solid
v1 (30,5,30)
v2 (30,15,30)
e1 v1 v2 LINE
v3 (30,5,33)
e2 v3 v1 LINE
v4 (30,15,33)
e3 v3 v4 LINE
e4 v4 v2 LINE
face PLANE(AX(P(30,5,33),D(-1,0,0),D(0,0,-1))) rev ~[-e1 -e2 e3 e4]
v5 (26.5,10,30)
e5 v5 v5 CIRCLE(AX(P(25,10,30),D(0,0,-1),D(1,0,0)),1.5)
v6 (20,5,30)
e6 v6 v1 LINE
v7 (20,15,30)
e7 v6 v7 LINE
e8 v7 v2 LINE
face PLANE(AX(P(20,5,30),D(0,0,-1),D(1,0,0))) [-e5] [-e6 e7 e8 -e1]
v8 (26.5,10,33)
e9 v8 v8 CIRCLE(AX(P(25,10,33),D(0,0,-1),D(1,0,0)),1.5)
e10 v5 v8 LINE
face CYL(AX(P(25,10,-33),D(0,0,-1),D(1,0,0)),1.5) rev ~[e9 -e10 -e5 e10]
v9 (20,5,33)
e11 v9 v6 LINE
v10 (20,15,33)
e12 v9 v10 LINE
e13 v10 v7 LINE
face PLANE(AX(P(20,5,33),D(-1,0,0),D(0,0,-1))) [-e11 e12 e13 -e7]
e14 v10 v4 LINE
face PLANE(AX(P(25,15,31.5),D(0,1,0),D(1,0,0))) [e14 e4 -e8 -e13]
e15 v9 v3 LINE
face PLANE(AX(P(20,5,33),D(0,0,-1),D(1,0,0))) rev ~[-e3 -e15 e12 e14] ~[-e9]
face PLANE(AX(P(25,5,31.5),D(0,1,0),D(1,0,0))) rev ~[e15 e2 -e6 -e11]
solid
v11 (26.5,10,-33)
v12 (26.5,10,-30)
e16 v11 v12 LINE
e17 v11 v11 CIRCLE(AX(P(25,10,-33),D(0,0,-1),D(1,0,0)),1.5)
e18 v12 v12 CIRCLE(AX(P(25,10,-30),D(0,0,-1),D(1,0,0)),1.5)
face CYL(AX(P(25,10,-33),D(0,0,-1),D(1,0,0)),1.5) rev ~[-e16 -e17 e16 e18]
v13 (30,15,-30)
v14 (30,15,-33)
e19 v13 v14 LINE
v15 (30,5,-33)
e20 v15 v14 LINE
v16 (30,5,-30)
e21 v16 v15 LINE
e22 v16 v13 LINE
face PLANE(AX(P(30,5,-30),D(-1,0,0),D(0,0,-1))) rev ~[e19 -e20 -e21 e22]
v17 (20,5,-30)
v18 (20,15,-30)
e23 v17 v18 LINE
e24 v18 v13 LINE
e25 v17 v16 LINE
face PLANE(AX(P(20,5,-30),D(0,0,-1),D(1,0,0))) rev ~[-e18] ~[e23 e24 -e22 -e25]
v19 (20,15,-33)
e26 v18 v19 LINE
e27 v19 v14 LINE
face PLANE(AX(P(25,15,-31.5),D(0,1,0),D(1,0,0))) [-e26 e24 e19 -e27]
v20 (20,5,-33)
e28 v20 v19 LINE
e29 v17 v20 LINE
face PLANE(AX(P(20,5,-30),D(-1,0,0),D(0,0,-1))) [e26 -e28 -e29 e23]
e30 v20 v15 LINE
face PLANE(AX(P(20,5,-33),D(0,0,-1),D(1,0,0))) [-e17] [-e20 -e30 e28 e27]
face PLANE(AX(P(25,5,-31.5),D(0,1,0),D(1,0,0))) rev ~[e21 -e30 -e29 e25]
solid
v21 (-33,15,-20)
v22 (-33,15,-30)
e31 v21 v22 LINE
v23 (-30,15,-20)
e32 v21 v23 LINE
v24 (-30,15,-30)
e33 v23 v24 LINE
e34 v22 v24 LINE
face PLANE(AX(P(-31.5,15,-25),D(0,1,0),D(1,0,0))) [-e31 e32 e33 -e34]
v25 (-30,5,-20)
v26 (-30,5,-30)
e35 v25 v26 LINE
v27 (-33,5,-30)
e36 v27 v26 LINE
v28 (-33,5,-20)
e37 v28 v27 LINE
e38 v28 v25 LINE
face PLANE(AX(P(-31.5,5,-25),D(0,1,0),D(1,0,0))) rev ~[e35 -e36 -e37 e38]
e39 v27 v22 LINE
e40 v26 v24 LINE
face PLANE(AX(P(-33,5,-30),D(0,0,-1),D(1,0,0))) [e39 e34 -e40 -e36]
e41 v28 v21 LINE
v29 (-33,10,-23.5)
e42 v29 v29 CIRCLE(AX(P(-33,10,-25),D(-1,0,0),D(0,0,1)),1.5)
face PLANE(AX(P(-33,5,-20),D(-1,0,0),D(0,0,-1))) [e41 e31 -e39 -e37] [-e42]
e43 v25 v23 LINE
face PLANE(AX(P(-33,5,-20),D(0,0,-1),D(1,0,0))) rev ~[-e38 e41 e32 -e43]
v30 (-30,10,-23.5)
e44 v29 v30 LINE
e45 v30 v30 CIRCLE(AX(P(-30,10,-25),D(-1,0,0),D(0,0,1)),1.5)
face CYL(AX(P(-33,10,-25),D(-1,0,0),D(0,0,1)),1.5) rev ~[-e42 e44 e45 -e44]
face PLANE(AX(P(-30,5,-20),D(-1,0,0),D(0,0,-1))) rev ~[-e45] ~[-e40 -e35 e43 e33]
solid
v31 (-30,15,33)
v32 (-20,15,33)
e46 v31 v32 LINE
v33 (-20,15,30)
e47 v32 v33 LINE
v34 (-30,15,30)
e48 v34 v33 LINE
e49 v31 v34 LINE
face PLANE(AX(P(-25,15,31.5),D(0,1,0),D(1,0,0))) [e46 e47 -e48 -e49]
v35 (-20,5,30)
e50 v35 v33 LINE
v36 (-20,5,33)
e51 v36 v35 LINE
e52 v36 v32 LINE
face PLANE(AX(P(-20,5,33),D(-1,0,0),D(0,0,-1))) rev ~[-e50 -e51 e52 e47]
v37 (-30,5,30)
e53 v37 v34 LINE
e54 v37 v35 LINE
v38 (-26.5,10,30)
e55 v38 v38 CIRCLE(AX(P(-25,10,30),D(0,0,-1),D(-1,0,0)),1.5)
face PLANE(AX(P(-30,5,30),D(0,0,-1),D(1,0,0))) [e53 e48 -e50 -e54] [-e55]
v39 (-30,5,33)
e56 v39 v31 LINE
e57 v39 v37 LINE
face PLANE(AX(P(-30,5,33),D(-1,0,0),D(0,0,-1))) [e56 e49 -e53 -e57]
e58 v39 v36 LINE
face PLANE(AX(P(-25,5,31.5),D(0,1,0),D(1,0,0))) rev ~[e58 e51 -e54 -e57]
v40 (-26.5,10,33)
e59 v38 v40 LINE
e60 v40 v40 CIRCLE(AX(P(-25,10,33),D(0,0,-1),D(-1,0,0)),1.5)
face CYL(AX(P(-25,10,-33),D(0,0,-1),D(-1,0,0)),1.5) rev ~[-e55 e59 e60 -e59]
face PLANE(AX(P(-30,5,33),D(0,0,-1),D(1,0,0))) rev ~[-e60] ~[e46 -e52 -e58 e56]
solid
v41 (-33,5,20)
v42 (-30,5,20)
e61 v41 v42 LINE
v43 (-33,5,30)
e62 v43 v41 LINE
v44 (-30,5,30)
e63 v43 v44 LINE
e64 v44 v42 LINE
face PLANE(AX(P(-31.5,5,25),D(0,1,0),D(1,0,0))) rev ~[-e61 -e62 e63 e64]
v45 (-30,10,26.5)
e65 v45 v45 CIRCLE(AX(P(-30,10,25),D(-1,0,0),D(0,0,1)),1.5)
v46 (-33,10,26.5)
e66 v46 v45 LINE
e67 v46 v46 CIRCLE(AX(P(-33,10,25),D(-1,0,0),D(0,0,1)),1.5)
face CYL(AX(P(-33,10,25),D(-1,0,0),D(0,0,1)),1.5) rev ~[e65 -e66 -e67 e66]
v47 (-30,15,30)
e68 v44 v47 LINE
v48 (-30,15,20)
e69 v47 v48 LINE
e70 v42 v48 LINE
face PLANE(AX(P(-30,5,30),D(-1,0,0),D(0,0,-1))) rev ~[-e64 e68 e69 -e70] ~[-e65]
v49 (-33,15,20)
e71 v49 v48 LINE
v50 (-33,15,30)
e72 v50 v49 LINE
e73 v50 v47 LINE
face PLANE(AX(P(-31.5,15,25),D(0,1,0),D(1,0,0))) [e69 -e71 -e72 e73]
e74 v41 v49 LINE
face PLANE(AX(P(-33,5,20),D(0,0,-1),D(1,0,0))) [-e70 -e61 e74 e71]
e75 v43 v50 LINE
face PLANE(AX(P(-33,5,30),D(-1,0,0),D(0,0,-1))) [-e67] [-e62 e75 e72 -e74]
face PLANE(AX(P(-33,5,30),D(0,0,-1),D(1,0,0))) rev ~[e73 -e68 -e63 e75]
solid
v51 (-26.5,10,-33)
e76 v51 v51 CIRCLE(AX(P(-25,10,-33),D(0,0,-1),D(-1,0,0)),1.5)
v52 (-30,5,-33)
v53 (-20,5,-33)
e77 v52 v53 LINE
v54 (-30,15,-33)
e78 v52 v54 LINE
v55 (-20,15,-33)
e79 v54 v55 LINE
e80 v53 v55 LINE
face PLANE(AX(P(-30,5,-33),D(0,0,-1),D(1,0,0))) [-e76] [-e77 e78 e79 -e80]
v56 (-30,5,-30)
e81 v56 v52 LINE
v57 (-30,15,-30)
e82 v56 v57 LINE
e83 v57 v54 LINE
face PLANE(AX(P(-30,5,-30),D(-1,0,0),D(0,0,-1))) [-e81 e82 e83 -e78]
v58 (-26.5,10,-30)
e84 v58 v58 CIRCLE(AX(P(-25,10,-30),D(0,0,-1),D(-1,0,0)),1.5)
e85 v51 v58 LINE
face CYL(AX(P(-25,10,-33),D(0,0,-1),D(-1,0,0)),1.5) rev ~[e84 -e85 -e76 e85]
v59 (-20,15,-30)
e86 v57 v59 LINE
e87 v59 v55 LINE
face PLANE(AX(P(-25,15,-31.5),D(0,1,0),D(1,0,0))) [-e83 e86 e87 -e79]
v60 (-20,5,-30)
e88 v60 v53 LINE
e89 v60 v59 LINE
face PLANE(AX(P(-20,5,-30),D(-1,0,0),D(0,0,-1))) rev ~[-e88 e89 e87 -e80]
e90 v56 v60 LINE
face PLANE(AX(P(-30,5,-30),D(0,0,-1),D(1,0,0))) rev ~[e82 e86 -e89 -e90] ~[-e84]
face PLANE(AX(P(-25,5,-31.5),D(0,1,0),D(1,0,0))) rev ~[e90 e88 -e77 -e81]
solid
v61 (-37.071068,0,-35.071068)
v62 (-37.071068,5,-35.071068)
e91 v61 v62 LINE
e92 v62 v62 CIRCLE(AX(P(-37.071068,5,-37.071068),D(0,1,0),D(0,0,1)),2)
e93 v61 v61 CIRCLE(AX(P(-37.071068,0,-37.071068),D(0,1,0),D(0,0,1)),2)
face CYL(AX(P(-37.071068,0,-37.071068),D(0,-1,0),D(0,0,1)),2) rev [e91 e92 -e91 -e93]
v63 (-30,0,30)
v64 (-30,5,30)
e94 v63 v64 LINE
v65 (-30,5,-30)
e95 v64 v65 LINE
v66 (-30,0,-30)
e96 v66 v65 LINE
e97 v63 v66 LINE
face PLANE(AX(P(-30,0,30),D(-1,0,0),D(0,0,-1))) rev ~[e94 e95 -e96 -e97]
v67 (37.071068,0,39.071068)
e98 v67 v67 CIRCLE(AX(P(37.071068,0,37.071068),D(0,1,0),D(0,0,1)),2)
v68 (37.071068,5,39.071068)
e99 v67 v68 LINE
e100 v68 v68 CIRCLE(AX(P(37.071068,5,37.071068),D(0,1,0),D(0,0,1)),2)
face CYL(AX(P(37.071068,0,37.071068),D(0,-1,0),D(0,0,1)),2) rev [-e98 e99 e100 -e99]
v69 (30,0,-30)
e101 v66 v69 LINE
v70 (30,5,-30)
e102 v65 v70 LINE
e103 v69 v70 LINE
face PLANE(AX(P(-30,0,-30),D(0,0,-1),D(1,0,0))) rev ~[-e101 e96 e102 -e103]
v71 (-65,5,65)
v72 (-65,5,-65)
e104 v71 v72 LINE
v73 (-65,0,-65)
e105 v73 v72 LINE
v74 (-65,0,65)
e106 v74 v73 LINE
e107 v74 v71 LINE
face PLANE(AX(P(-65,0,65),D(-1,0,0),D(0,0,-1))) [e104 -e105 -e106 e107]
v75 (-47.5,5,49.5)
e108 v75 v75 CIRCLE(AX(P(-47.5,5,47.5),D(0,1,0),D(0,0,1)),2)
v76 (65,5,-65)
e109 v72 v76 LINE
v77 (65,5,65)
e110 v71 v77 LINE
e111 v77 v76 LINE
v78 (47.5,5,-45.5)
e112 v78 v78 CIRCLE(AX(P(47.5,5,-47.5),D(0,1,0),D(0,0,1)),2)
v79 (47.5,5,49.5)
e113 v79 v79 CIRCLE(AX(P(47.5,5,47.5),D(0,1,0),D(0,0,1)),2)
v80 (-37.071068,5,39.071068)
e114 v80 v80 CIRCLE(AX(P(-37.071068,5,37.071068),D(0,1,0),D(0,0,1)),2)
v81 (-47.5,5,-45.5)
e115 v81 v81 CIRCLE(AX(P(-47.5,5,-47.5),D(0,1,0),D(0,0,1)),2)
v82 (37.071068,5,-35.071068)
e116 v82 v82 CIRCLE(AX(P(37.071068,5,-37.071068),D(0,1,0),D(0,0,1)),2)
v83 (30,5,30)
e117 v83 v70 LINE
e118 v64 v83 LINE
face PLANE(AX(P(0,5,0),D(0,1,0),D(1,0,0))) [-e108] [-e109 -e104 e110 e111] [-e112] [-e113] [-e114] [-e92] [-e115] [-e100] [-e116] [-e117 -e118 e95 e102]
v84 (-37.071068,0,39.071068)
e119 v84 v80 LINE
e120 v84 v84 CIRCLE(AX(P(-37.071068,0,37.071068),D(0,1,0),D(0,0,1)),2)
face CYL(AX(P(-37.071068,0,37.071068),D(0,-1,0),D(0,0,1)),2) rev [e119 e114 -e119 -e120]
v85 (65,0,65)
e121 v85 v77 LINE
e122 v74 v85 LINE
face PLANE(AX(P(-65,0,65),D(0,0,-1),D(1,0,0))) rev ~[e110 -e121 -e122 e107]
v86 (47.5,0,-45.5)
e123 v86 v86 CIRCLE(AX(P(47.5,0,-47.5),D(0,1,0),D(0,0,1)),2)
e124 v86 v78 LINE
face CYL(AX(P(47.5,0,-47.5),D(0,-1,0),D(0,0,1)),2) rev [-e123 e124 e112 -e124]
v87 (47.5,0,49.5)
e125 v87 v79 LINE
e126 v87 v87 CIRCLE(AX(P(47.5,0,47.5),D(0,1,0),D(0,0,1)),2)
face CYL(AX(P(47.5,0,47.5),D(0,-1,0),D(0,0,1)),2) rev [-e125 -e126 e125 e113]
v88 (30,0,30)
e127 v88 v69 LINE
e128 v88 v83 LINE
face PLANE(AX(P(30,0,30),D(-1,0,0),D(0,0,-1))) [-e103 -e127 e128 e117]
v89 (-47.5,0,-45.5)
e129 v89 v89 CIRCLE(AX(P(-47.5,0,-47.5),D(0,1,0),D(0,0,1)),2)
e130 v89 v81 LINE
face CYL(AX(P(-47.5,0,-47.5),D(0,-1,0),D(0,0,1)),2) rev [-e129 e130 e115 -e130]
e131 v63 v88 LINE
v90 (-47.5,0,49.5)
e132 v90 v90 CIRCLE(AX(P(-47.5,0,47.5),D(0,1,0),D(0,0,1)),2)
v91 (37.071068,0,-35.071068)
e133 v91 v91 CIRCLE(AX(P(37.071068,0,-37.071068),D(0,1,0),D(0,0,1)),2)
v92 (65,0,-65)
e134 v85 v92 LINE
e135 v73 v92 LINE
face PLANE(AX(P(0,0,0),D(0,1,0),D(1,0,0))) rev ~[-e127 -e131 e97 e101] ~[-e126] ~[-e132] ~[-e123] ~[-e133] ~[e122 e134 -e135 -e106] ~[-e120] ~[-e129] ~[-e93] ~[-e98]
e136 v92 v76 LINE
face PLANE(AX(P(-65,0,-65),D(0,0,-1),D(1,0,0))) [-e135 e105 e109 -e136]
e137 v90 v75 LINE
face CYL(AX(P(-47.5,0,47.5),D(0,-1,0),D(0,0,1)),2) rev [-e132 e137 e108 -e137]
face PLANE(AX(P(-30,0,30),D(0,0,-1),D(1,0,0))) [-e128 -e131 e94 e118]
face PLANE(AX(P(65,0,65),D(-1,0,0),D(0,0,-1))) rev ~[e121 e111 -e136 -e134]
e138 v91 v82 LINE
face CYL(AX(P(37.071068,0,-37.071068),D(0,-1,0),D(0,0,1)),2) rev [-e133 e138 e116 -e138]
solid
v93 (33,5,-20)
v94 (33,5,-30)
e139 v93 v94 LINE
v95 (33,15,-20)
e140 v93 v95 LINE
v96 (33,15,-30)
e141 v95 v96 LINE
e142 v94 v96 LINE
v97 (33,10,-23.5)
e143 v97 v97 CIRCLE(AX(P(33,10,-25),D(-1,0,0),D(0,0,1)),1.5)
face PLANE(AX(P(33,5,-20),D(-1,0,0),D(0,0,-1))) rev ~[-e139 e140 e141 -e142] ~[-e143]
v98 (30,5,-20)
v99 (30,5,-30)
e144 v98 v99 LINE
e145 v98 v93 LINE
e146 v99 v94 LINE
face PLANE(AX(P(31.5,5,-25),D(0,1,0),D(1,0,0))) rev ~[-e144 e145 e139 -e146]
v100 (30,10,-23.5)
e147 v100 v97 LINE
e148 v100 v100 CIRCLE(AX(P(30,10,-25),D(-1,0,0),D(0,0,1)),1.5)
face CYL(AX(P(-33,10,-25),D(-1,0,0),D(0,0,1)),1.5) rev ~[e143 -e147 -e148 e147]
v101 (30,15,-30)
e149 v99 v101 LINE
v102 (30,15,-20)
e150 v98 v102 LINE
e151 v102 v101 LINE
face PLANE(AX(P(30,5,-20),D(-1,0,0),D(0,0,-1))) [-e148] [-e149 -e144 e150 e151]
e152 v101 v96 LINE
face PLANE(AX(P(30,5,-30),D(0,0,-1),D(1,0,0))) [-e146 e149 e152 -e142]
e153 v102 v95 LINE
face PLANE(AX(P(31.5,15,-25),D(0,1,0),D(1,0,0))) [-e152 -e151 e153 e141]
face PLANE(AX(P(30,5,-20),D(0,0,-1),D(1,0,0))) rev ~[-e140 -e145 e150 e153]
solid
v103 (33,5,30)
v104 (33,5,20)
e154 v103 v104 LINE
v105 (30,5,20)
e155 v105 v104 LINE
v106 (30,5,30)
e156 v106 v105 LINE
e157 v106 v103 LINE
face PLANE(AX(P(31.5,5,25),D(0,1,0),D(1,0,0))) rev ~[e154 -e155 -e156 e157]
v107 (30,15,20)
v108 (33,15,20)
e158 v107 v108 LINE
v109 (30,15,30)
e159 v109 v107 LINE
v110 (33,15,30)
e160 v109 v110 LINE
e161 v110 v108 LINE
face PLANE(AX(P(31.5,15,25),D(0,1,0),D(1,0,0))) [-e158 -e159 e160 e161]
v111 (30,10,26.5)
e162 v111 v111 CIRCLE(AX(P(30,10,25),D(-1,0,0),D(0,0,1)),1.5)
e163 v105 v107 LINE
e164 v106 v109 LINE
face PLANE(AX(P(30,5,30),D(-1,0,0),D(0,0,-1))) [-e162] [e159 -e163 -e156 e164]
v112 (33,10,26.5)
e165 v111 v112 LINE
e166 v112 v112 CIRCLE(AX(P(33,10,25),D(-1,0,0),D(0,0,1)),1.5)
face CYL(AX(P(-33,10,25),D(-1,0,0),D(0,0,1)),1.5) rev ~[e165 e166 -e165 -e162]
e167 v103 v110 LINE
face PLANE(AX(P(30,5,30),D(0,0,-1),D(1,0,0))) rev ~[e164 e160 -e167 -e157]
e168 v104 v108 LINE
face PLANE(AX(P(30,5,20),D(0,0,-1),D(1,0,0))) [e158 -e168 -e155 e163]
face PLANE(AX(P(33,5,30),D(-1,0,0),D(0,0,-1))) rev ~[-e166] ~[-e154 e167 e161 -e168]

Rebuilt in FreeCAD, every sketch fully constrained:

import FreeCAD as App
import Part
import Sketcher
from FreeCAD import Vector

doc = App.newDocument("Part")
body = doc.addObject("PartDesign::Body", "Body")

# Sketch on XZ plane
sketch1 = body.newObject("Sketcher::SketchObject", "Sketch")
sketch1.AttachmentSupport = (doc.getObject("XZ_Plane"), [""])
sketch1.MapMode = "FlatFace"
sketch1.addGeometry(Part.LineSegment(Vector(-65, -65, 0), Vector(-65, 65, 0)), False)
sketch1.addGeometry(Part.LineSegment(Vector(-65, 65, 0), Vector(65, 65, 0)), False)
sketch1.addGeometry(Part.LineSegment(Vector(65, 65, 0), Vector(65, -65, 0)), False)
sketch1.addGeometry(Part.LineSegment(Vector(65, -65, 0), Vector(-65, -65, 0)), False)
sketch1.addGeometry(Part.Circle(Vector(-47.5, 47.5, 0), Vector(0, 0, 1), 2), False)
sketch1.addGeometry(Part.Circle(Vector(-37.1, 37.1, 0), Vector(0, 0, 1), 2), False)
sketch1.addGeometry(Part.Circle(Vector(47.5, 47.5, 0), Vector(0, 0, 1), 2), False)
sketch1.addGeometry(Part.Circle(Vector(37.1, 37.1, 0), Vector(0, 0, 1), 2), False)
sketch1.addGeometry(Part.Circle(Vector(-37.1, -37.1, 0), Vector(0, 0, 1), 2), False)
sketch1.addGeometry(Part.Circle(Vector(-47.5, -47.5, 0), Vector(0, 0, 1), 2), False)
sketch1.addGeometry(Part.LineSegment(Vector(30, 30, 0), Vector(-30, 30, 0)), False)
sketch1.addGeometry(Part.LineSegment(Vector(-30, 30, 0), Vector(-30, -30, 0)), False)
sketch1.addGeometry(Part.LineSegment(Vector(-30, -30, 0), Vector(30, -30, 0)), False)
sketch1.addGeometry(Part.LineSegment(Vector(30, -30, 0), Vector(30, 30, 0)), False)
sketch1.addGeometry(Part.Circle(Vector(37.1, -37.1, 0), Vector(0, 0, 1), 2), False)
sketch1.addGeometry(Part.Circle(Vector(47.5, -47.5, 0), Vector(0, 0, 1), 2), False)
sketch1.addConstraint(Sketcher.Constraint("Coincident", 0, 2, 1, 1))
sketch1.addConstraint(Sketcher.Constraint("Coincident", 1, 2, 2, 1))
sketch1.addConstraint(Sketcher.Constraint("Coincident", 2, 2, 3, 1))
sketch1.addConstraint(Sketcher.Constraint("Coincident", 3, 2, 0, 1))
sketch1.addConstraint(Sketcher.Constraint("Coincident", 10, 2, 11, 1))
sketch1.addConstraint(Sketcher.Constraint("Coincident", 11, 2, 12, 1))
sketch1.addConstraint(Sketcher.Constraint("Coincident", 12, 2, 13, 1))
sketch1.addConstraint(Sketcher.Constraint("Coincident", 13, 2, 10, 1))
sketch1.addConstraint(Sketcher.Constraint("Vertical", 0))
sketch1.addConstraint(Sketcher.Constraint("Horizontal", 1))
sketch1.addConstraint(Sketcher.Constraint("Vertical", 2))
sketch1.addConstraint(Sketcher.Constraint("Horizontal", 3))
sketch1.addConstraint(Sketcher.Constraint("Horizontal", 10))
sketch1.addConstraint(Sketcher.Constraint("Vertical", 11))
sketch1.addConstraint(Sketcher.Constraint("Horizontal", 12))
sketch1.addConstraint(Sketcher.Constraint("Vertical", 13))
sketch1.addConstraint(Sketcher.Constraint("Equal", 4, 5))
sketch1.addConstraint(Sketcher.Constraint("Equal", 5, 6))
sketch1.addConstraint(Sketcher.Constraint("Equal", 6, 7))
sketch1.addConstraint(Sketcher.Constraint("Equal", 7, 8))
sketch1.addConstraint(Sketcher.Constraint("Equal", 8, 9))
sketch1.addConstraint(Sketcher.Constraint("Equal", 9, 14))
sketch1.addConstraint(Sketcher.Constraint("Equal", 14, 15))
sketch1.addConstraint(Sketcher.Constraint("Symmetric", 7, 3, 8, 3, -1, 1))
sketch1.addConstraint(Sketcher.Constraint("Symmetric", 6, 3, 9, 3, -1, 1))
sketch1.addConstraint(Sketcher.Constraint("Symmetric", 5, 3, 14, 3, -1, 1))
sketch1.addConstraint(Sketcher.Constraint("Symmetric", 4, 3, 15, 3, -1, 1))
sketch1.addConstraint(Sketcher.Constraint("Symmetric", 0, 2, 2, 2, -1, 1))
sketch1.addConstraint(Sketcher.Constraint("Symmetric", 10, 2, 12, 2, -1, 1))
sketch1.addConstraint(Sketcher.Constraint("Symmetric", 4, 3, 6, 3, -2))
sketch1.addConstraint(Sketcher.Constraint("Symmetric", 5, 3, 7, 3, -2))
sketch1.addConstraint(Sketcher.Constraint("Equal", 3, 0))
sketch1.addConstraint(Sketcher.Constraint("Equal", 12, 11))
sketch1.addConstraint(Sketcher.Constraint("Diameter", 4, 4.0))
sketch1.addConstraint(Sketcher.Constraint("DistanceX", 1, 1, 1, 2, 130.0))
sketch1.addConstraint(Sketcher.Constraint("DistanceX", 10, 2, 10, 1, 60.0))
sketch1.addConstraint(Sketcher.Constraint("DistanceX", 4, 3, 6, 3, 95.0))
sketch1.addConstraint(Sketcher.Constraint("DistanceY", 9, 3, 4, 3, 95.0))
sketch1.addConstraint(Sketcher.Constraint("DistanceX", 5, 3, -1, 1, 37.071068))
sketch1.addConstraint(Sketcher.Constraint("DistanceY", -1, 1, 5, 3, 37.071068))
pad1 = body.newObject("PartDesign::Pad", "Pad")
pad1.Profile = sketch1
pad1.Length = 5
pad1.Reversed = True
body2 = doc.addObject("PartDesign::Body", "Body001")

# Sketch on XZ plane
sketch2 = body2.newObject("Sketcher::SketchObject", "Sketch001")
sketch2.AttachmentSupport = (doc.getObject("XZ_Plane001"), [""])
sketch2.MapMode = "FlatFace"
sketch2.AttachmentOffset = App.Placement(Vector(0, 0, -5), App.Rotation())
sketch2.addGeometry(Part.LineSegment(Vector(-33, -30, 0), Vector(-33, -20, 0)), False)
sketch2.addGeometry(Part.LineSegment(Vector(-33, -20, 0), Vector(-30, -20, 0)), False)
sketch2.addGeometry(Part.LineSegment(Vector(-30, -20, 0), Vector(-30, -30, 0)), False)
sketch2.addGeometry(Part.LineSegment(Vector(-30, -30, 0), Vector(-33, -30, 0)), False)
sketch2.addConstraint(Sketcher.Constraint("Coincident", 0, 2, 1, 1))
sketch2.addConstraint(Sketcher.Constraint("Coincident", 1, 2, 2, 1))
sketch2.addConstraint(Sketcher.Constraint("Coincident", 2, 2, 3, 1))
sketch2.addConstraint(Sketcher.Constraint("Coincident", 3, 2, 0, 1))
sketch2.addConstraint(Sketcher.Constraint("Vertical", 0))
sketch2.addConstraint(Sketcher.Constraint("Horizontal", 1))
sketch2.addConstraint(Sketcher.Constraint("Vertical", 2))
sketch2.addConstraint(Sketcher.Constraint("Horizontal", 3))
sketch2.addConstraint(Sketcher.Constraint("DistanceX", 1, 1, 1, 2, 3.0))
sketch2.addConstraint(Sketcher.Constraint("DistanceY", 0, 1, 0, 2, 10.0))
sketch2.addConstraint(Sketcher.Constraint("DistanceX", 0, 2, -1, 1, 33.0))
sketch2.addConstraint(Sketcher.Constraint("DistanceY", 0, 2, -1, 1, 20.0))
pad2 = body2.newObject("PartDesign::Pad", "Pad001")
pad2.Profile = sketch2
pad2.Length = 10
pad2.Reversed = True
body3 = doc.addObject("PartDesign::Body", "Body002")

# Sketch on XZ plane
sketch3 = body3.newObject("Sketcher::SketchObject", "Sketch002")
sketch3.AttachmentSupport = (doc.getObject("XZ_Plane002"), [""])
sketch3.MapMode = "FlatFace"
sketch3.AttachmentOffset = App.Placement(Vector(0, 0, -5), App.Rotation())
sketch3.addGeometry(Part.LineSegment(Vector(-30, -33, 0), Vector(-30, -30, 0)), False)
sketch3.addGeometry(Part.LineSegment(Vector(-30, -30, 0), Vector(-20, -30, 0)), False)
sketch3.addGeometry(Part.LineSegment(Vector(-20, -30, 0), Vector(-20, -33, 0)), False)
sketch3.addGeometry(Part.LineSegment(Vector(-20, -33, 0), Vector(-30, -33, 0)), False)
sketch3.addConstraint(Sketcher.Constraint("Coincident", 0, 2, 1, 1))
sketch3.addConstraint(Sketcher.Constraint("Coincident", 1, 2, 2, 1))
sketch3.addConstraint(Sketcher.Constraint("Coincident", 2, 2, 3, 1))
sketch3.addConstraint(Sketcher.Constraint("Coincident", 3, 2, 0, 1))
sketch3.addConstraint(Sketcher.Constraint("Vertical", 0))
sketch3.addConstraint(Sketcher.Constraint("Horizontal", 1))
sketch3.addConstraint(Sketcher.Constraint("Vertical", 2))
sketch3.addConstraint(Sketcher.Constraint("Horizontal", 3))
sketch3.addConstraint(Sketcher.Constraint("DistanceX", 1, 1, 1, 2, 10.0))
sketch3.addConstraint(Sketcher.Constraint("DistanceY", 0, 1, 0, 2, 3.0))
sketch3.addConstraint(Sketcher.Constraint("DistanceX", 0, 2, -1, 1, 30.0))
sketch3.addConstraint(Sketcher.Constraint("DistanceY", 0, 2, -1, 1, 30.0))
pad3 = body3.newObject("PartDesign::Pad", "Pad002")
pad3.Profile = sketch3
pad3.Length = 10
pad3.Reversed = True
body4 = doc.addObject("PartDesign::Body", "Body003")

# Sketch on XZ plane
sketch4 = body4.newObject("Sketcher::SketchObject", "Sketch003")
sketch4.AttachmentSupport = (doc.getObject("XZ_Plane003"), [""])
sketch4.MapMode = "FlatFace"
sketch4.AttachmentOffset = App.Placement(Vector(0, 0, -5), App.Rotation())
sketch4.addGeometry(Part.LineSegment(Vector(20, -33, 0), Vector(20, -30, 0)), False)
sketch4.addGeometry(Part.LineSegment(Vector(20, -30, 0), Vector(30, -30, 0)), False)
sketch4.addGeometry(Part.LineSegment(Vector(30, -30, 0), Vector(30, -33, 0)), False)
sketch4.addGeometry(Part.LineSegment(Vector(30, -33, 0), Vector(20, -33, 0)), False)
sketch4.addConstraint(Sketcher.Constraint("Coincident", 0, 2, 1, 1))
sketch4.addConstraint(Sketcher.Constraint("Coincident", 1, 2, 2, 1))
sketch4.addConstraint(Sketcher.Constraint("Coincident", 2, 2, 3, 1))
sketch4.addConstraint(Sketcher.Constraint("Coincident", 3, 2, 0, 1))
sketch4.addConstraint(Sketcher.Constraint("Vertical", 0))
sketch4.addConstraint(Sketcher.Constraint("Horizontal", 1))
sketch4.addConstraint(Sketcher.Constraint("Vertical", 2))
sketch4.addConstraint(Sketcher.Constraint("Horizontal", 3))
sketch4.addConstraint(Sketcher.Constraint("DistanceX", 1, 1, 1, 2, 10.0))
sketch4.addConstraint(Sketcher.Constraint("DistanceY", 0, 1, 0, 2, 3.0))
sketch4.addConstraint(Sketcher.Constraint("DistanceX", -1, 1, 0, 2, 20.0))
sketch4.addConstraint(Sketcher.Constraint("DistanceY", 0, 2, -1, 1, 30.0))
pad4 = body4.newObject("PartDesign::Pad", "Pad003")
pad4.Profile = sketch4
pad4.Length = 10
pad4.Reversed = True
body5 = doc.addObject("PartDesign::Body", "Body004")

# Sketch on XZ plane
sketch5 = body5.newObject("Sketcher::SketchObject", "Sketch004")
sketch5.AttachmentSupport = (doc.getObject("XZ_Plane004"), [""])
sketch5.MapMode = "FlatFace"
sketch5.AttachmentOffset = App.Placement(Vector(0, 0, -5), App.Rotation())
sketch5.addGeometry(Part.LineSegment(Vector(20, 30, 0), Vector(20, 33, 0)), False)
sketch5.addGeometry(Part.LineSegment(Vector(20, 33, 0), Vector(30, 33, 0)), False)
sketch5.addGeometry(Part.LineSegment(Vector(30, 33, 0), Vector(30, 30, 0)), False)
sketch5.addGeometry(Part.LineSegment(Vector(30, 30, 0), Vector(20, 30, 0)), False)
sketch5.addConstraint(Sketcher.Constraint("Coincident", 0, 2, 1, 1))
sketch5.addConstraint(Sketcher.Constraint("Coincident", 1, 2, 2, 1))
sketch5.addConstraint(Sketcher.Constraint("Coincident", 2, 2, 3, 1))
sketch5.addConstraint(Sketcher.Constraint("Coincident", 3, 2, 0, 1))
sketch5.addConstraint(Sketcher.Constraint("Vertical", 0))
sketch5.addConstraint(Sketcher.Constraint("Horizontal", 1))
sketch5.addConstraint(Sketcher.Constraint("Vertical", 2))
sketch5.addConstraint(Sketcher.Constraint("Horizontal", 3))
sketch5.addConstraint(Sketcher.Constraint("DistanceX", 1, 1, 1, 2, 10.0))
sketch5.addConstraint(Sketcher.Constraint("DistanceY", 0, 1, 0, 2, 3.0))
sketch5.addConstraint(Sketcher.Constraint("DistanceX", -1, 1, 0, 2, 20.0))
sketch5.addConstraint(Sketcher.Constraint("DistanceY", -1, 1, 0, 2, 33.0))
pad5 = body5.newObject("PartDesign::Pad", "Pad004")
pad5.Profile = sketch5
pad5.Length = 10
pad5.Reversed = True
body6 = doc.addObject("PartDesign::Body", "Body005")

# Sketch on XZ plane
sketch6 = body6.newObject("Sketcher::SketchObject", "Sketch005")
sketch6.AttachmentSupport = (doc.getObject("XZ_Plane005"), [""])
sketch6.MapMode = "FlatFace"
sketch6.AttachmentOffset = App.Placement(Vector(0, 0, -5), App.Rotation())
sketch6.addGeometry(Part.LineSegment(Vector(30, -30, 0), Vector(30, -20, 0)), False)
sketch6.addGeometry(Part.LineSegment(Vector(30, -20, 0), Vector(33, -20, 0)), False)
sketch6.addGeometry(Part.LineSegment(Vector(33, -20, 0), Vector(33, -30, 0)), False)
sketch6.addGeometry(Part.LineSegment(Vector(33, -30, 0), Vector(30, -30, 0)), False)
sketch6.addConstraint(Sketcher.Constraint("Coincident", 0, 2, 1, 1))
sketch6.addConstraint(Sketcher.Constraint("Coincident", 1, 2, 2, 1))
sketch6.addConstraint(Sketcher.Constraint("Coincident", 2, 2, 3, 1))
sketch6.addConstraint(Sketcher.Constraint("Coincident", 3, 2, 0, 1))
sketch6.addConstraint(Sketcher.Constraint("Vertical", 0))
sketch6.addConstraint(Sketcher.Constraint("Horizontal", 1))
sketch6.addConstraint(Sketcher.Constraint("Vertical", 2))
sketch6.addConstraint(Sketcher.Constraint("Horizontal", 3))
sketch6.addConstraint(Sketcher.Constraint("DistanceX", 1, 1, 1, 2, 3.0))
sketch6.addConstraint(Sketcher.Constraint("DistanceY", 0, 1, 0, 2, 10.0))
sketch6.addConstraint(Sketcher.Constraint("DistanceX", -1, 1, 0, 2, 30.0))
sketch6.addConstraint(Sketcher.Constraint("DistanceY", 0, 2, -1, 1, 20.0))
pad6 = body6.newObject("PartDesign::Pad", "Pad005")
pad6.Profile = sketch6
pad6.Length = 10
pad6.Reversed = True
body7 = doc.addObject("PartDesign::Body", "Body006")

# Sketch on XZ plane
sketch7 = body7.newObject("Sketcher::SketchObject", "Sketch006")
sketch7.AttachmentSupport = (doc.getObject("XZ_Plane006"), [""])
sketch7.MapMode = "FlatFace"
sketch7.AttachmentOffset = App.Placement(Vector(0, 0, -5), App.Rotation())
sketch7.addGeometry(Part.LineSegment(Vector(-30, 30, 0), Vector(-30, 33, 0)), False)
sketch7.addGeometry(Part.LineSegment(Vector(-30, 33, 0), Vector(-20, 33, 0)), False)
sketch7.addGeometry(Part.LineSegment(Vector(-20, 33, 0), Vector(-20, 30, 0)), False)
sketch7.addGeometry(Part.LineSegment(Vector(-20, 30, 0), Vector(-30, 30, 0)), False)
sketch7.addConstraint(Sketcher.Constraint("Coincident", 0, 2, 1, 1))
sketch7.addConstraint(Sketcher.Constraint("Coincident", 1, 2, 2, 1))
sketch7.addConstraint(Sketcher.Constraint("Coincident", 2, 2, 3, 1))
sketch7.addConstraint(Sketcher.Constraint("Coincident", 3, 2, 0, 1))
sketch7.addConstraint(Sketcher.Constraint("Vertical", 0))
sketch7.addConstraint(Sketcher.Constraint("Horizontal", 1))
sketch7.addConstraint(Sketcher.Constraint("Vertical", 2))
sketch7.addConstraint(Sketcher.Constraint("Horizontal", 3))
sketch7.addConstraint(Sketcher.Constraint("DistanceX", 1, 1, 1, 2, 10.0))
sketch7.addConstraint(Sketcher.Constraint("DistanceY", 0, 1, 0, 2, 3.0))
sketch7.addConstraint(Sketcher.Constraint("DistanceX", 0, 2, -1, 1, 30.0))
sketch7.addConstraint(Sketcher.Constraint("DistanceY", -1, 1, 0, 2, 33.0))
pad7 = body7.newObject("PartDesign::Pad", "Pad006")
pad7.Profile = sketch7
pad7.Length = 10
pad7.Reversed = True
body8 = doc.addObject("PartDesign::Body", "Body007")

# Sketch on XZ plane
sketch8 = body8.newObject("Sketcher::SketchObject", "Sketch007")
sketch8.AttachmentSupport = (doc.getObject("XZ_Plane007"), [""])
sketch8.MapMode = "FlatFace"
sketch8.AttachmentOffset = App.Placement(Vector(0, 0, -5), App.Rotation())
sketch8.addGeometry(Part.LineSegment(Vector(-33, 20, 0), Vector(-33, 30, 0)), False)
sketch8.addGeometry(Part.LineSegment(Vector(-33, 30, 0), Vector(-30, 30, 0)), False)
sketch8.addGeometry(Part.LineSegment(Vector(-30, 30, 0), Vector(-30, 20, 0)), False)
sketch8.addGeometry(Part.LineSegment(Vector(-30, 20, 0), Vector(-33, 20, 0)), False)
sketch8.addConstraint(Sketcher.Constraint("Coincident", 0, 2, 1, 1))
sketch8.addConstraint(Sketcher.Constraint("Coincident", 1, 2, 2, 1))
sketch8.addConstraint(Sketcher.Constraint("Coincident", 2, 2, 3, 1))
sketch8.addConstraint(Sketcher.Constraint("Coincident", 3, 2, 0, 1))
sketch8.addConstraint(Sketcher.Constraint("Vertical", 0))
sketch8.addConstraint(Sketcher.Constraint("Horizontal", 1))
sketch8.addConstraint(Sketcher.Constraint("Vertical", 2))
sketch8.addConstraint(Sketcher.Constraint("Horizontal", 3))
sketch8.addConstraint(Sketcher.Constraint("DistanceX", 1, 1, 1, 2, 3.0))
sketch8.addConstraint(Sketcher.Constraint("DistanceY", 0, 1, 0, 2, 10.0))
sketch8.addConstraint(Sketcher.Constraint("DistanceX", 0, 2, -1, 1, 33.0))
sketch8.addConstraint(Sketcher.Constraint("DistanceY", -1, 1, 0, 2, 30.0))
pad8 = body8.newObject("PartDesign::Pad", "Pad007")
pad8.Profile = sketch8
pad8.Length = 10
pad8.Reversed = True
body9 = doc.addObject("PartDesign::Body", "Body008")

# Sketch on XZ plane
sketch9 = body9.newObject("Sketcher::SketchObject", "Sketch008")
sketch9.AttachmentSupport = (doc.getObject("XZ_Plane008"), [""])
sketch9.MapMode = "FlatFace"
sketch9.AttachmentOffset = App.Placement(Vector(0, 0, -5), App.Rotation())
sketch9.addGeometry(Part.LineSegment(Vector(30, 20, 0), Vector(30, 30, 0)), False)
sketch9.addGeometry(Part.LineSegment(Vector(30, 30, 0), Vector(33, 30, 0)), False)
sketch9.addGeometry(Part.LineSegment(Vector(33, 30, 0), Vector(33, 20, 0)), False)
sketch9.addGeometry(Part.LineSegment(Vector(33, 20, 0), Vector(30, 20, 0)), False)
sketch9.addConstraint(Sketcher.Constraint("Coincident", 0, 2, 1, 1))
sketch9.addConstraint(Sketcher.Constraint("Coincident", 1, 2, 2, 1))
sketch9.addConstraint(Sketcher.Constraint("Coincident", 2, 2, 3, 1))
sketch9.addConstraint(Sketcher.Constraint("Coincident", 3, 2, 0, 1))
sketch9.addConstraint(Sketcher.Constraint("Vertical", 0))
sketch9.addConstraint(Sketcher.Constraint("Horizontal", 1))
sketch9.addConstraint(Sketcher.Constraint("Vertical", 2))
sketch9.addConstraint(Sketcher.Constraint("Horizontal", 3))
sketch9.addConstraint(Sketcher.Constraint("DistanceX", 1, 1, 1, 2, 3.0))
sketch9.addConstraint(Sketcher.Constraint("DistanceY", 0, 1, 0, 2, 10.0))
sketch9.addConstraint(Sketcher.Constraint("DistanceX", -1, 1, 0, 2, 30.0))
sketch9.addConstraint(Sketcher.Constraint("DistanceY", -1, 1, 0, 2, 30.0))
pad9 = body9.newObject("PartDesign::Pad", "Pad008")
pad9.Profile = sketch9
pad9.Length = 10
pad9.Reversed = True
body10 = doc.addObject("PartDesign::Body", "Body009")
body10.AllowCompound = True

# Sketch on YZ plane
sketch10 = body10.newObject("Sketcher::SketchObject", "Sketch009")
sketch10.AttachmentSupport = (doc.getObject("YZ_Plane009"), [""])
sketch10.MapMode = "FlatFace"
sketch10.AttachmentOffset = App.Placement(Vector(0, 0, -33), App.Rotation())
sketch10.addGeometry(Part.Circle(Vector(10, -25, 0), Vector(0, 0, 1), 1.5), False)
sketch10.addGeometry(Part.Circle(Vector(10, 25, 0), Vector(0, 0, 1), 1.5), False)
sketch10.addConstraint(Sketcher.Constraint("Equal", 0, 1))
sketch10.addConstraint(Sketcher.Constraint("Symmetric", 0, 3, 1, 3, -1))
sketch10.addConstraint(Sketcher.Constraint("Diameter", 0, 3.0))
sketch10.addConstraint(Sketcher.Constraint("DistanceX", -1, 1, 0, 3, 10.0))
sketch10.addConstraint(Sketcher.Constraint("DistanceY", 0, 3, -1, 1, 25.0))
pad10 = body10.newObject("PartDesign::Pad", "Pad009")
pad10.Profile = sketch10
pad10.Length = 82
doc.recompute()

body11 = doc.addObject("PartDesign::Body", "Body010")
body11.BaseFeature = body10
boolean = body2.newObject("PartDesign::Boolean", "Boolean")
boolean.Type = "Cut"
boolean.addObjects([body11])
doc.recompute()

body12 = doc.addObject("PartDesign::Body", "Body011")
body12.BaseFeature = body10
boolean2 = body6.newObject("PartDesign::Boolean", "Boolean001")
boolean2.Type = "Cut"
boolean2.addObjects([body12])
doc.recompute()

body13 = doc.addObject("PartDesign::Body", "Body012")
body13.BaseFeature = body10
boolean3 = body8.newObject("PartDesign::Boolean", "Boolean002")
boolean3.Type = "Cut"
boolean3.addObjects([body13])
doc.recompute()

boolean4 = body9.newObject("PartDesign::Boolean", "Boolean003")
boolean4.Type = "Cut"
boolean4.addObjects([body10])
body14 = doc.addObject("PartDesign::Body", "Body013")
body14.AllowCompound = True

# Sketch on XY plane
sketch11 = body14.newObject("Sketcher::SketchObject", "Sketch010")
sketch11.AttachmentSupport = (doc.getObject("XY_Plane013"), [""])
sketch11.MapMode = "FlatFace"
sketch11.AttachmentOffset = App.Placement(Vector(0, 0, -33), App.Rotation())
sketch11.addGeometry(Part.Circle(Vector(25, 10, 0), Vector(0, 0, 1), 1.5), False)
sketch11.addGeometry(Part.Circle(Vector(-25, 10, 0), Vector(0, 0, 1), 1.5), False)
sketch11.addConstraint(Sketcher.Constraint("Equal", 0, 1))
sketch11.addConstraint(Sketcher.Constraint("Symmetric", 0, 3, 1, 3, -2))
sketch11.addConstraint(Sketcher.Constraint("Diameter", 0, 3.0))
sketch11.addConstraint(Sketcher.Constraint("DistanceX", -1, 1, 0, 3, 25.0))
sketch11.addConstraint(Sketcher.Constraint("DistanceY", -1, 1, 0, 3, 10.0))
pad11 = body14.newObject("PartDesign::Pad", "Pad010")
pad11.Profile = sketch11
pad11.Length = 82
doc.recompute()

body15 = doc.addObject("PartDesign::Body", "Body014")
body15.BaseFeature = body14
boolean5 = body3.newObject("PartDesign::Boolean", "Boolean004")
boolean5.Type = "Cut"
boolean5.addObjects([body15])
doc.recompute()

body16 = doc.addObject("PartDesign::Body", "Body015")
body16.BaseFeature = body14
boolean6 = body4.newObject("PartDesign::Boolean", "Boolean005")
boolean6.Type = "Cut"
boolean6.addObjects([body16])
doc.recompute()

body17 = doc.addObject("PartDesign::Body", "Body016")
body17.BaseFeature = body14
boolean7 = body5.newObject("PartDesign::Boolean", "Boolean006")
boolean7.Type = "Cut"
boolean7.addObjects([body17])
doc.recompute()

boolean8 = body7.newObject("PartDesign::Boolean", "Boolean007")
boolean8.Type = "Cut"
boolean8.addObjects([body14])

doc.recompute()
